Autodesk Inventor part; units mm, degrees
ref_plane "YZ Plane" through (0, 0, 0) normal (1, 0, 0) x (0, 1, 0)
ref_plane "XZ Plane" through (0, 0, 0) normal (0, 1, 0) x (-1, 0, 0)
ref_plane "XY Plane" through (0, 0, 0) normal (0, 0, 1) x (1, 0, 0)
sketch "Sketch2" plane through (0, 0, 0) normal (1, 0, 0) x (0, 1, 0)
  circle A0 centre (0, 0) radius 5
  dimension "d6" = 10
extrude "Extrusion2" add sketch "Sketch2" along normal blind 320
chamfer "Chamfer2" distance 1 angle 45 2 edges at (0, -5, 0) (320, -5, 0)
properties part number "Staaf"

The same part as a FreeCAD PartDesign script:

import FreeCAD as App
import Part
import Sketcher

V = App.Vector


def edges_at(feature, points):
    """Names of the edges that pass closest to the given points."""
    edges = feature.Shape.Edges
    near = lambda p: min(range(len(edges)), key=lambda i: edges[i].distToShape(Part.Vertex(*p))[0])
    return sorted({f"Edge{near(p) + 1}" for p in points})

doc = App.newDocument("Part")
body = doc.addObject("PartDesign::Body", "Body")

sketch1 = body.newObject("Sketcher::SketchObject", "Sketch")
sketch1.AttachmentSupport = (doc.getObject("YZ_Plane"), [""])
sketch1.MapMode = "FlatFace"
sketch1.addGeometry(Part.Circle(V(0, 0, 0), V(0, 0, 1), 5), False)
sketch1.addConstraint(Sketcher.Constraint("Coincident", 0, 3, -1, 1))
sketch1.addConstraint(Sketcher.Constraint("Diameter", 0, 10.0))
pad1 = body.newObject("PartDesign::Pad", "Pad")
pad1.Profile = sketch1
pad1.Length = 320
doc.recompute()

chamfer = body.newObject("PartDesign::Chamfer", "Chamfer")
chamfer.Base = (pad1, edges_at(pad1, [(0, -5, 0), (320, -5, 0)]))
chamfer.Size = 1

doc.recompute()
